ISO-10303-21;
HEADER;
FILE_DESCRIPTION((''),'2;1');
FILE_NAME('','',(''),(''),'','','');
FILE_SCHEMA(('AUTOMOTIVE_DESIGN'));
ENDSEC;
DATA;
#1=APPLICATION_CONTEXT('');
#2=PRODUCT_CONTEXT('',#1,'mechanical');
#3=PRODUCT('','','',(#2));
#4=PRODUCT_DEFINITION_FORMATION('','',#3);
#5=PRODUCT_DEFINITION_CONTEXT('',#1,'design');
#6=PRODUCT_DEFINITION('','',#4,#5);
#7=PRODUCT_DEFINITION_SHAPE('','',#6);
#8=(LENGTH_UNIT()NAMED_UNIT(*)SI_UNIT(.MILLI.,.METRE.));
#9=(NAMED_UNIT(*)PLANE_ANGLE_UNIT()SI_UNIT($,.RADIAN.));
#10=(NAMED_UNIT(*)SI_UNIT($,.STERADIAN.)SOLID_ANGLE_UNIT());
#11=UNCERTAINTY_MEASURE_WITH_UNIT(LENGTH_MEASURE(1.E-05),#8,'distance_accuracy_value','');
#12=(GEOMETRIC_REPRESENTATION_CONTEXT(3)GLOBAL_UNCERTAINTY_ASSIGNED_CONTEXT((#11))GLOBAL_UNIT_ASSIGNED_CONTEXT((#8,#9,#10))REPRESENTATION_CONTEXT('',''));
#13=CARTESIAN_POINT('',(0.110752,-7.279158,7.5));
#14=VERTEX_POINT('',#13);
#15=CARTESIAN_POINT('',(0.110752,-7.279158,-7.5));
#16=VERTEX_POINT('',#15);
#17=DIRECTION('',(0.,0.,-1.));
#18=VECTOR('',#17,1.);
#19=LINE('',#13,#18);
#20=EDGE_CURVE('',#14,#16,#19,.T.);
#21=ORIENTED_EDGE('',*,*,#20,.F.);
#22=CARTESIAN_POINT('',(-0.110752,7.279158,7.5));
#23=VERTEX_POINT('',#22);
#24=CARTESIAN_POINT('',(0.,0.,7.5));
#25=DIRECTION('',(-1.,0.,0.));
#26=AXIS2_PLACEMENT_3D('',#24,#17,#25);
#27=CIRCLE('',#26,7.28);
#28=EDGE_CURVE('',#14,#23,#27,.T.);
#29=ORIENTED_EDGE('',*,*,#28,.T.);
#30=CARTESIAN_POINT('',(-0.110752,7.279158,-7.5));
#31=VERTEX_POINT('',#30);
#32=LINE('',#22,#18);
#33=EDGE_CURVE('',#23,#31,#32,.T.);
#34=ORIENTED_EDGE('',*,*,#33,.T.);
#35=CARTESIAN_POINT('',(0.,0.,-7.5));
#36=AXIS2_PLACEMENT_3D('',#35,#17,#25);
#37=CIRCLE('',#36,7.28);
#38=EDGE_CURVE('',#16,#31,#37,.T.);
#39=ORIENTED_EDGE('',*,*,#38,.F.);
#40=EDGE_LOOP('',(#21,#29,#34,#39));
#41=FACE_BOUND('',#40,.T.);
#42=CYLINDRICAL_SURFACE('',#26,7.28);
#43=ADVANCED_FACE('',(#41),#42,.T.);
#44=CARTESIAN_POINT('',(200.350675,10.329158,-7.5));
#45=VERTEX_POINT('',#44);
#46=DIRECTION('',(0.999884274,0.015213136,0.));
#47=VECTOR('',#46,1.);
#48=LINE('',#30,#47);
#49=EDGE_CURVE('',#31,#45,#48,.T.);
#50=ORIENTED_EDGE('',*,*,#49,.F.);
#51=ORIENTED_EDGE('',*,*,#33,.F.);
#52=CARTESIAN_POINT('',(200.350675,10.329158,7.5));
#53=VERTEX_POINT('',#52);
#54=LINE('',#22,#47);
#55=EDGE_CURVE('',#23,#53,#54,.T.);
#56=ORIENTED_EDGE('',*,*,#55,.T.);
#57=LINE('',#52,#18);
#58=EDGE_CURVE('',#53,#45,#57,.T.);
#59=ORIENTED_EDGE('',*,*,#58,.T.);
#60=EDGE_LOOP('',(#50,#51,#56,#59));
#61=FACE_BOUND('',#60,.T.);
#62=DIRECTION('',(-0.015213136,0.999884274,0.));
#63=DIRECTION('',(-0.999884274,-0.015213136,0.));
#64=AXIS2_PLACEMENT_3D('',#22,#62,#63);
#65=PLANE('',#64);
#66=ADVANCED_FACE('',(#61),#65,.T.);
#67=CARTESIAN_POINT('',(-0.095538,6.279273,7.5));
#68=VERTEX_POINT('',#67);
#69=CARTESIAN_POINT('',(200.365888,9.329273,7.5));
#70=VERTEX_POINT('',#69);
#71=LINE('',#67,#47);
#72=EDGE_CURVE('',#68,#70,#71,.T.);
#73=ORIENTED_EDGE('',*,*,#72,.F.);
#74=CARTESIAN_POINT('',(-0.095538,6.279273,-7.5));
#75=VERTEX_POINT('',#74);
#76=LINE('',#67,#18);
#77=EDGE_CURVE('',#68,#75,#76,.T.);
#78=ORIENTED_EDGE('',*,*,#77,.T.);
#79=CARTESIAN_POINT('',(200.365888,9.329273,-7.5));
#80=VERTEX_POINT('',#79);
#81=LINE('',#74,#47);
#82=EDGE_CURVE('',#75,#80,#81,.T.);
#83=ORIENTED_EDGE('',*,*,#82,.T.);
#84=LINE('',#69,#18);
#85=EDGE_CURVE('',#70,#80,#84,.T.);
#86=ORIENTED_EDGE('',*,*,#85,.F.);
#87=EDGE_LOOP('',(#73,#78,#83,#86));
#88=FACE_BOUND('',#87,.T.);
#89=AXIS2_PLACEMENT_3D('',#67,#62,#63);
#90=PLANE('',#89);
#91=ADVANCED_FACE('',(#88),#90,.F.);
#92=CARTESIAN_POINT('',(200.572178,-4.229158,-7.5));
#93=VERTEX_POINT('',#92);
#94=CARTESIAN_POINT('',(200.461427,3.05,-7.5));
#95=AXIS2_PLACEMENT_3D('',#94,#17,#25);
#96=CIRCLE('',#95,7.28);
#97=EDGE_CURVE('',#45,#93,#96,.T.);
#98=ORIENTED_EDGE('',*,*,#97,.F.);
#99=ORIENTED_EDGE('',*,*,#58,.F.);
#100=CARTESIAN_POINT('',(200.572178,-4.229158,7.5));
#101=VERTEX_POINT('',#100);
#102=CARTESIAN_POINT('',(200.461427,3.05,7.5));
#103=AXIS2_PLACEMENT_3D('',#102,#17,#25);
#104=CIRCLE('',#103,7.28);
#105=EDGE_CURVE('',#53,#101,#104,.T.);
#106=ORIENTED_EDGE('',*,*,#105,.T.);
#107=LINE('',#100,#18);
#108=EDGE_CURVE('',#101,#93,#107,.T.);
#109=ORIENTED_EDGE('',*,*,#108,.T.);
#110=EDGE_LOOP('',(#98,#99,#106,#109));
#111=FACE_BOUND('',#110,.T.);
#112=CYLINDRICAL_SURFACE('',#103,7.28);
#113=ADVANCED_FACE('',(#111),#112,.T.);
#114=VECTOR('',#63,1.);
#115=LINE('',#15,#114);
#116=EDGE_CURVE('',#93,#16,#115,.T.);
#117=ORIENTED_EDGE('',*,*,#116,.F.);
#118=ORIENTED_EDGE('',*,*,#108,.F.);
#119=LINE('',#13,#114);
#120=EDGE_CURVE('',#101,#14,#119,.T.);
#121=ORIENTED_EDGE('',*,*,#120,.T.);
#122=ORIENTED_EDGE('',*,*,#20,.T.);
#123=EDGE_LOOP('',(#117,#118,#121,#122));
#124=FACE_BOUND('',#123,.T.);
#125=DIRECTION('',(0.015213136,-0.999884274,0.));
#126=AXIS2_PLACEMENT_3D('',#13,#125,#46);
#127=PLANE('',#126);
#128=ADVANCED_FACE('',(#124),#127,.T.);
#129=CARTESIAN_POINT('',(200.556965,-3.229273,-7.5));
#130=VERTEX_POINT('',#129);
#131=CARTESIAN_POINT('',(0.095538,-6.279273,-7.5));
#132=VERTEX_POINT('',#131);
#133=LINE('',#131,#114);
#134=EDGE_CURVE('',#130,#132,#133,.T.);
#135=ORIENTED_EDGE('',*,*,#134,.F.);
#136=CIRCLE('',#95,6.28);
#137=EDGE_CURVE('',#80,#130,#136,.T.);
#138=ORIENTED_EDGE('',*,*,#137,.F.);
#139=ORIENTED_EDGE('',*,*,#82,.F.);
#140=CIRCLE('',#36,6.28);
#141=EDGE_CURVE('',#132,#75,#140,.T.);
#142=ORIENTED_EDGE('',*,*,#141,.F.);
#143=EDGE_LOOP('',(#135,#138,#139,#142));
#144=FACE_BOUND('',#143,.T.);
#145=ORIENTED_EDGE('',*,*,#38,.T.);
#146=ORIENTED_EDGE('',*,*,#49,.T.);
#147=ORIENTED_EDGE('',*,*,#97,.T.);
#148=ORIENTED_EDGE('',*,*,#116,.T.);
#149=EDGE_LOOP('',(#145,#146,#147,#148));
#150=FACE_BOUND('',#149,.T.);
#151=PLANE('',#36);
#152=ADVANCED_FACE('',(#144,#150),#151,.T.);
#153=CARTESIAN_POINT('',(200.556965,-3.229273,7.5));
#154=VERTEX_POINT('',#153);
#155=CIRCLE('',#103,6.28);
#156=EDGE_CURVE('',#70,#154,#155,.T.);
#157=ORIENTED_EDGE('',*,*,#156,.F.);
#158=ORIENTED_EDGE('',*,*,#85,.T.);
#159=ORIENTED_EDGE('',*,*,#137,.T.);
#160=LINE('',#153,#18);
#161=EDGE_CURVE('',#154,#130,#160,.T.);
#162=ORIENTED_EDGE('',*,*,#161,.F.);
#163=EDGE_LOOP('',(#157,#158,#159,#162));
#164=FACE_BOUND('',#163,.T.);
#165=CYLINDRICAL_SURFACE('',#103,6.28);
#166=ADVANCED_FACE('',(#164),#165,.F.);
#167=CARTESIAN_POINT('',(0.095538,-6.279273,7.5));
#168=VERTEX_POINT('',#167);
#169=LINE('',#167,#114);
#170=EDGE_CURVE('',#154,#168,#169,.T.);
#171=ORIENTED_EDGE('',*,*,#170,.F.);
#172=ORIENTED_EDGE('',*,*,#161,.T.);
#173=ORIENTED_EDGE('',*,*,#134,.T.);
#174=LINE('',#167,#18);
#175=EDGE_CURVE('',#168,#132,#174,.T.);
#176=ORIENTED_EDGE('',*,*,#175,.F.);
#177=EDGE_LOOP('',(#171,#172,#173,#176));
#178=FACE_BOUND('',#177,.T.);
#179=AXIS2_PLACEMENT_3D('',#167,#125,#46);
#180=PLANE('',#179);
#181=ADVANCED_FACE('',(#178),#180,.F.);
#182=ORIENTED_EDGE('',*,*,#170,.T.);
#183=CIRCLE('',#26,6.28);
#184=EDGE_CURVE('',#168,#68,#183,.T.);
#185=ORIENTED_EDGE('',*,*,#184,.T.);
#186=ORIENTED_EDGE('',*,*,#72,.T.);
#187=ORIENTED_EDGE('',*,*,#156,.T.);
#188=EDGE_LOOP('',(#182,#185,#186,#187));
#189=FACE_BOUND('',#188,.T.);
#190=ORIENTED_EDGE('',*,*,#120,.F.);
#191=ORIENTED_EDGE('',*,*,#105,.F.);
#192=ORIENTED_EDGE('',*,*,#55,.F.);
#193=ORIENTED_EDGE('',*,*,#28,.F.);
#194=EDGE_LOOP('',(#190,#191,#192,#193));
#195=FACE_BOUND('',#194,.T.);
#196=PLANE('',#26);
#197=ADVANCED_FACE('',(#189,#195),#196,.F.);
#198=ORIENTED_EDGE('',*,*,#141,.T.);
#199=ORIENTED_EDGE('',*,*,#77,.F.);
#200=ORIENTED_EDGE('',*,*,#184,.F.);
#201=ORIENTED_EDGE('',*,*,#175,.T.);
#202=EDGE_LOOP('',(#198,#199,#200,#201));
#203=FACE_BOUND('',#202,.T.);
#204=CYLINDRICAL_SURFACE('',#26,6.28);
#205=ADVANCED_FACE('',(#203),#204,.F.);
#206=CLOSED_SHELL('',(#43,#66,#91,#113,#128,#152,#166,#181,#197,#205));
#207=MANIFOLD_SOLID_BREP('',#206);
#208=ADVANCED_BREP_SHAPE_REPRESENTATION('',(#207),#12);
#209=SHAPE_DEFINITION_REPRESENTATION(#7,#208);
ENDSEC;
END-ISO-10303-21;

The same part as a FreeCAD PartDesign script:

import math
import FreeCAD as App
import Part
import Sketcher
from FreeCAD import Vector

doc = App.newDocument("Part")
body = doc.addObject("PartDesign::Body", "Body")

sketch1 = body.newObject("Sketcher::SketchObject", "Sketch")
sketch1.AttachmentSupport = (doc.getObject("XY_Plane"), [""])
sketch1.MapMode = "FlatFace"
sketch1.addGeometry(Part.LineSegment(Vector(0.110752, -7.279158, 0), Vector(200.572178, -4.229158, 0)), False)
sketch1.addGeometry(Part.ArcOfCircle(Part.Circle(Vector(200.461427, 3.05, 0), Vector(0, 0, 1), 7.28), math.radians(-89.128318), math.radians(90.871682)), False)
sketch1.addGeometry(Part.LineSegment(Vector(200.350675, 10.329158, 0), Vector(-0.110752, 7.279158, 0)), False)
sketch1.addGeometry(Part.ArcOfCircle(Part.Circle(Vector(0, 0, 0), Vector(0, 0, 1), 7.28), math.radians(90.871682), math.radians(270.871682)), False)
sketch1.addGeometry(Part.LineSegment(Vector(200.556965, -3.229273, 0), Vector(0.095538, -6.279273, 0)), False)
sketch1.addGeometry(Part.ArcOfCircle(Part.Circle(Vector(0, 0, 0), Vector(0, 0, 1), 6.28), math.radians(90.871682), math.radians(270.871682)), False)
sketch1.addGeometry(Part.LineSegment(Vector(-0.095538, 6.279273, 0), Vector(200.365888, 9.329273, 0)), False)
sketch1.addGeometry(Part.ArcOfCircle(Part.Circle(Vector(200.461427, 3.05, 0), Vector(0, 0, 1), 6.28), math.radians(-89.128318), math.radians(90.871682)), False)
sketch1.addConstraint(Sketcher.Constraint("Tangent", 0, 2, 1, 1))
sketch1.addConstraint(Sketcher.Constraint("Tangent", 1, 2, 2, 1))
sketch1.addConstraint(Sketcher.Constraint("Tangent", 2, 2, 3, 1))
sketch1.addConstraint(Sketcher.Constraint("Tangent", 3, 2, 0, 1))
sketch1.addConstraint(Sketcher.Constraint("Tangent", 4, 2, 5, 2))
sketch1.addConstraint(Sketcher.Constraint("Tangent", 5, 1, 6, 1))
sketch1.addConstraint(Sketcher.Constraint("Tangent", 6, 2, 7, 2))
sketch1.addConstraint(Sketcher.Constraint("Tangent", 7, 1, 4, 1))
sketch1.addConstraint(Sketcher.Constraint("Coincident", 3, 3, -1, 1))
sketch1.addConstraint(Sketcher.Constraint("Coincident", 5, 3, -1, 1))
sketch1.addConstraint(Sketcher.Constraint("Coincident", 7, 3, 1, 3))
sketch1.addConstraint(Sketcher.Constraint("Equal", 1, 3))
sketch1.addConstraint(Sketcher.Constraint("Equal", 5, 7))
sketch1.addConstraint(Sketcher.Constraint("Radius", 1, 7.28))
sketch1.addConstraint(Sketcher.Constraint("Radius", 5, 6.28))
sketch1.addConstraint(Sketcher.Constraint("DistanceY", -1, 1, 1, 3, 3.05))
sketch1.addConstraint(Sketcher.Constraint("DistanceX", -1, 1, 0, 2, 200.572178))
pad1 = body.newObject("PartDesign::Pad", "Pad")
pad1.Profile = sketch1
pad1.Length = 15
pad1.Midplane = True

doc.recompute()
